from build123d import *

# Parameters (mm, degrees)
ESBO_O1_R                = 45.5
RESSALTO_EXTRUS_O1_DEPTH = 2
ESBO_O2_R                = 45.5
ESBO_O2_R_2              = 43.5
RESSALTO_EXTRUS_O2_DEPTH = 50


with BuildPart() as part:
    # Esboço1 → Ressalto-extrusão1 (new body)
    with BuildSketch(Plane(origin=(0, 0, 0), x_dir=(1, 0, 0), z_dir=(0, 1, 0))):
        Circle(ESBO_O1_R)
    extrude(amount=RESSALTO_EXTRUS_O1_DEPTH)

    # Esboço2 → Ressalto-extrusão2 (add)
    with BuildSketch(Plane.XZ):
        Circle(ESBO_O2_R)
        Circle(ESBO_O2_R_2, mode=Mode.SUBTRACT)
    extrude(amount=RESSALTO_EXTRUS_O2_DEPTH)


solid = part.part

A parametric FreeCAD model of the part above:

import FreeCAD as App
import Part
import Sketcher
Q = App.Units.Quantity

doc = App.newDocument("Part")
body = doc.addObject("PartDesign::Body", "Body")

sketch1 = doc.addObject("Sketcher::SketchObject", "Sketch")
body.addObject(sketch1)
sketch1.AttachmentSupport = (doc.XZ_Plane, [""])
sketch1.MapMode = "FlatFace"
sketch1.addGeometry(Part.Circle(App.Vector(0, 0, 0), App.Vector(0, 0, 1), 46), False)
sketch1.addConstraint(Sketcher.Constraint("Coincident", 0, 3, -1, 1))
sketch1.addConstraint(Sketcher.Constraint("Diameter", 0, Q("91 mm")))
pad1 = doc.addObject("PartDesign::Pad", "Pad")
body.addObject(pad1)
pad1.Profile = sketch1
pad1.Length = 2
pad1.Reversed = True

sketch2 = doc.addObject("Sketcher::SketchObject", "Sketch001")
body.addObject(sketch2)
sketch2.AttachmentSupport = (doc.XZ_Plane, [""])
sketch2.MapMode = "FlatFace"
sketch2.addGeometry(Part.Circle(App.Vector(0, 0, 0), App.Vector(0, 0, 1), 46), False)
sketch2.addGeometry(Part.Circle(App.Vector(0, 0, 0), App.Vector(0, 0, 1), 44), False)
sketch2.addConstraint(Sketcher.Constraint("Coincident", 0, 3, -1, 1))
sketch2.addConstraint(Sketcher.Constraint("Coincident", 1, 3, -1, 1))
sketch2.addConstraint(Sketcher.Constraint("Diameter", 0, Q("91 mm")))
sketch2.addConstraint(Sketcher.Constraint("Diameter", 1, Q("87 mm")))
pad2 = doc.addObject("PartDesign::Pad", "Pad001")
body.addObject(pad2)
pad2.Profile = sketch2
pad2.Length = 50

doc.recompute()
